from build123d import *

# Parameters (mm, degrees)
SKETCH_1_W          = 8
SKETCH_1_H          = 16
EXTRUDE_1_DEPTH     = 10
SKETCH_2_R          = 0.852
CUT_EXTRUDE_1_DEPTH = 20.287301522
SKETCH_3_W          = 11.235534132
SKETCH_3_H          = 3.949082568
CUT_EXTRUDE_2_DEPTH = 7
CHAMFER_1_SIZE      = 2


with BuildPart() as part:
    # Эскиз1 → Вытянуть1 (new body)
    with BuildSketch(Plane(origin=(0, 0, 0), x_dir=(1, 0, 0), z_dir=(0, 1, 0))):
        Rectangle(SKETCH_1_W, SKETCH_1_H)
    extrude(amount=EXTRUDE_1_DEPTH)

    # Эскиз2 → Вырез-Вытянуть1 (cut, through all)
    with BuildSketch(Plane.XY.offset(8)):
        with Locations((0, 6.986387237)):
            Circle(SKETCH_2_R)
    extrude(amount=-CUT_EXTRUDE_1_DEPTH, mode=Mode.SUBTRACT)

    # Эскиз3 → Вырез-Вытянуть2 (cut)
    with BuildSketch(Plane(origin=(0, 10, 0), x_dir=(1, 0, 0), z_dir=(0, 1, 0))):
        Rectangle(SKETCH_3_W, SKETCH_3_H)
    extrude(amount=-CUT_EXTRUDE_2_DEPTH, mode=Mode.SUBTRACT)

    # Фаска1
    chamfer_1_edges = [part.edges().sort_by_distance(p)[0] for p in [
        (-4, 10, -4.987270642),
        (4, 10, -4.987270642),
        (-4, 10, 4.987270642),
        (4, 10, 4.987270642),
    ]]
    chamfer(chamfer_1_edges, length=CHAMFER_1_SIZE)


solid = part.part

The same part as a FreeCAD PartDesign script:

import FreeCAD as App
import Part
import Sketcher


def edges_at(feature, points):
    """Names of the edges that pass closest to the given points."""
    edges = feature.Shape.Edges
    near = lambda p: min(range(len(edges)), key=lambda i: edges[i].distToShape(Part.Vertex(*p))[0])
    return sorted({f"Edge{near(p) + 1}" for p in points})


def add_polygon(sketch, points):
    """Adds a closed chain of lines whose ends are joined by coincident constraints."""
    first, n = sketch.GeometryCount, len(points)
    for a, b in zip(points, points[1:] + points[:1]):
        sketch.addGeometry(Part.LineSegment(App.Vector(*a, 0), App.Vector(*b, 0)), False)
    for i in range(n):
        sketch.addConstraint(Sketcher.Constraint("Coincident", first + i, 2, first + (i + 1) % n, 1))

doc = App.newDocument("Part")
body = doc.addObject("PartDesign::Body", "Body")

# Sketch on XZ plane
sketch1 = body.newObject("Sketcher::SketchObject", "Sketch")
sketch1.AttachmentSupport = (doc.getObject("XZ_Plane"), [""])
sketch1.MapMode = "FlatFace"
add_polygon(sketch1, [(-4, -8), (-4, 8), (4, 8), (4, -8)])  # lines 0-3
sketch1.addConstraint([
    Sketcher.Constraint("Vertical", 0),
    Sketcher.Constraint("Horizontal", 1),
    Sketcher.Constraint("Vertical", 2),
    Sketcher.Constraint("Horizontal", 3),
    Sketcher.Constraint("Symmetric", 0, 2, 2, 2, -1, 1),
    Sketcher.Constraint("DistanceX", 1, 1, 1, 2, 8.0),
    Sketcher.Constraint("DistanceY", 0, 1, 0, 2, 16.0),
])
pad1 = body.newObject("PartDesign::Pad", "Pad")
pad1.Profile = sketch1
pad1.Length = 10
pad1.Reversed = True

# Sketch on XY plane
sketch2 = body.newObject("Sketcher::SketchObject", "Sketch001")
sketch2.AttachmentSupport = (doc.getObject("XY_Plane"), [""])
sketch2.MapMode = "FlatFace"
sketch2.AttachmentOffset = App.Placement(App.Vector(0, 0, 8), App.Rotation())
sketch2.addGeometry(Part.Circle(App.Vector(0, 7, 0), App.Vector(0, 0, 1), 0.9), False)
sketch2.addConstraint([
    Sketcher.Constraint("PointOnObject", 0, 3, -2),
    Sketcher.Constraint("Diameter", 0, 1.704),
    Sketcher.Constraint("DistanceY", -1, 1, 0, 3, 6.986387),
])
pocket1 = body.newObject("PartDesign::Pocket", "Pocket")
pocket1.Profile = sketch2
pocket1.Type = "ThroughAll"

# Sketch on XZ plane
sketch3 = body.newObject("Sketcher::SketchObject", "Sketch002")
sketch3.AttachmentSupport = (doc.getObject("XZ_Plane"), [""])
sketch3.MapMode = "FlatFace"
sketch3.AttachmentOffset = App.Placement(App.Vector(0, 0, -10), App.Rotation())
add_polygon(sketch3, [(-5.6, -2), (-5.6, 2), (5.6, 2), (5.6, -2)])  # lines 0-3
sketch3.addConstraint([
    Sketcher.Constraint("Vertical", 0),
    Sketcher.Constraint("Horizontal", 1),
    Sketcher.Constraint("Vertical", 2),
    Sketcher.Constraint("Horizontal", 3),
    Sketcher.Constraint("Symmetric", 0, 2, 2, 2, -1, 1),
    Sketcher.Constraint("DistanceX", 1, 1, 1, 2, 11.235534),
    Sketcher.Constraint("DistanceY", 0, 1, 0, 2, 3.949083),
])
pocket2 = body.newObject("PartDesign::Pocket", "Pocket001")
pocket2.Profile = sketch3
pocket2.Length = 7
pocket2.Reversed = True
doc.recompute()

chamfer = body.newObject("PartDesign::Chamfer", "Chamfer")
chamfer.Base = (pocket2, edges_at(pocket2, [
    (-4, 10, -4.987),
    (4, 10, -4.987),
    (-4, 10, 4.987),
    (4, 10, 4.987),
]))
chamfer.Size = 2

doc.recompute()
